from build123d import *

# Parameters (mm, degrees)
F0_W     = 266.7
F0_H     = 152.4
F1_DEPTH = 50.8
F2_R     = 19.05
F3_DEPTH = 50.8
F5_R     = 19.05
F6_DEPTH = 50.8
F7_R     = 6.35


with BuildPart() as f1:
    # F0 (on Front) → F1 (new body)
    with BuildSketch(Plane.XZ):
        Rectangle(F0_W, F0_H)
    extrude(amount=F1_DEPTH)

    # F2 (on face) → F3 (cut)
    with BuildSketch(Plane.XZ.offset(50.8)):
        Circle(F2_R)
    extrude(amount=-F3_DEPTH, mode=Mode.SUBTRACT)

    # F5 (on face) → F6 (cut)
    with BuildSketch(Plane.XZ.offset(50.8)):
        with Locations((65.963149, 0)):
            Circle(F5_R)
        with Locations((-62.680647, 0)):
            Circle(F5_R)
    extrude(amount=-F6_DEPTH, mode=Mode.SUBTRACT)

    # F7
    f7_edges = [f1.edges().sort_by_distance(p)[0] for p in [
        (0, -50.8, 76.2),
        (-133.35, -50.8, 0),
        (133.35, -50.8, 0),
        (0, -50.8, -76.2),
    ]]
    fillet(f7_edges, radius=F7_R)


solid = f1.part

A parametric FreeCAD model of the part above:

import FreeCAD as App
import Part
import Sketcher
from FreeCAD import Vector
Q = App.Units.Quantity


def edges_at(feature, points):
    """Names of the edges that pass closest to the given points."""
    edges = feature.Shape.Edges
    near = lambda p: min(range(len(edges)), key=lambda i: edges[i].distToShape(Part.Vertex(*p))[0])
    return sorted({f"Edge{near(p) + 1}" for p in points})


def add_polygon(sketch, points):
    """Adds a closed chain of lines whose ends are joined by coincident constraints."""
    first, n = sketch.GeometryCount, len(points)
    for a, b in zip(points, points[1:] + points[:1]):
        sketch.addGeometry(Part.LineSegment(App.Vector(*a, 0), App.Vector(*b, 0)), False)
    for i in range(n):
        sketch.addConstraint(Sketcher.Constraint("Coincident", first + i, 2, first + (i + 1) % n, 1))

doc = App.newDocument("Part")
body = doc.addObject("PartDesign::Body", "Body")

# Sketch on XZ plane
sketch1 = body.newObject("Sketcher::SketchObject", "Sketch")
sketch1.AttachmentSupport = (doc.getObject("XZ_Plane"), [""])
sketch1.MapMode = "FlatFace"
add_polygon(sketch1, [(-133, 76), (-133, -76), (133, -76), (133, 76)])  # lines 0-3
sketch1.addConstraint([
    Sketcher.Constraint("Vertical", 0),
    Sketcher.Constraint("Horizontal", 1),
    Sketcher.Constraint("Vertical", 2),
    Sketcher.Constraint("Horizontal", 3),
    Sketcher.Constraint("Symmetric", 0, 2, 2, 2, -1, 1),
    Sketcher.Constraint("DistanceY", 0, 2, 0, 1, Q("6 in")),
    Sketcher.Constraint("DistanceX", 1, 1, 1, 2, Q("10.5 in")),
])
pad1 = body.newObject("PartDesign::Pad", "Pad")
pad1.Profile = sketch1
pad1.Length = Q("2 in")

# Sketch on XZ plane
sketch2 = body.newObject("Sketcher::SketchObject", "Sketch001")
sketch2.AttachmentSupport = (doc.getObject("XZ_Plane"), [""])
sketch2.MapMode = "FlatFace"
sketch2.AttachmentOffset = App.Placement(Vector(0, 0, 2 * 25.4), App.Rotation())
sketch2.addGeometry(Part.Circle(Vector(0, 0, 0), Vector(0, 0, 1), 19), False)
sketch2.addConstraint([
    Sketcher.Constraint("Coincident", 0, 3, -1, 1),
    Sketcher.Constraint("Diameter", 0, Q("1.5 in")),
])
pocket1 = body.newObject("PartDesign::Pocket", "Pocket")
pocket1.Profile = sketch2
pocket1.Length = Q("2 in")

# Sketch on XZ plane
sketch3 = body.newObject("Sketcher::SketchObject", "Sketch002")
sketch3.AttachmentSupport = (doc.getObject("XZ_Plane"), [""])
sketch3.MapMode = "FlatFace"
sketch3.AttachmentOffset = App.Placement(Vector(0, 0, 2 * 25.4), App.Rotation())
sketch3.addGeometry([
    Part.Circle(Vector(66, 0, 0), Vector(0, 0, 1), 19),
    Part.Circle(Vector(-63, 0, 0), Vector(0, 0, 1), 19),
], False)
sketch3.addConstraint([
    Sketcher.Constraint("Equal", 0, 1),
    Sketcher.Constraint("PointOnObject", 0, 3, -1),
    Sketcher.Constraint("PointOnObject", 1, 3, -1),
    Sketcher.Constraint("Diameter", 0, Q("1.5 in")),
    Sketcher.Constraint("DistanceX", -1, 1, 0, 3, 65.963149),
    Sketcher.Constraint("DistanceX", 1, 3, -1, 1, 62.680647),
])
pocket2 = body.newObject("PartDesign::Pocket", "Pocket001")
pocket2.Profile = sketch3
pocket2.Length = Q("2 in")
doc.recompute()

fillet = body.newObject("PartDesign::Fillet", "Fillet")
fillet.Base = (pocket2, edges_at(pocket2, [
    (0, -50.8, 76.2),
    (-133.35, -50.8, 0),
    (133.35, -50.8, 0),
    (0, -50.8, -76.2),
]))
fillet.Radius = Q("0.25 in")

doc.recompute()
